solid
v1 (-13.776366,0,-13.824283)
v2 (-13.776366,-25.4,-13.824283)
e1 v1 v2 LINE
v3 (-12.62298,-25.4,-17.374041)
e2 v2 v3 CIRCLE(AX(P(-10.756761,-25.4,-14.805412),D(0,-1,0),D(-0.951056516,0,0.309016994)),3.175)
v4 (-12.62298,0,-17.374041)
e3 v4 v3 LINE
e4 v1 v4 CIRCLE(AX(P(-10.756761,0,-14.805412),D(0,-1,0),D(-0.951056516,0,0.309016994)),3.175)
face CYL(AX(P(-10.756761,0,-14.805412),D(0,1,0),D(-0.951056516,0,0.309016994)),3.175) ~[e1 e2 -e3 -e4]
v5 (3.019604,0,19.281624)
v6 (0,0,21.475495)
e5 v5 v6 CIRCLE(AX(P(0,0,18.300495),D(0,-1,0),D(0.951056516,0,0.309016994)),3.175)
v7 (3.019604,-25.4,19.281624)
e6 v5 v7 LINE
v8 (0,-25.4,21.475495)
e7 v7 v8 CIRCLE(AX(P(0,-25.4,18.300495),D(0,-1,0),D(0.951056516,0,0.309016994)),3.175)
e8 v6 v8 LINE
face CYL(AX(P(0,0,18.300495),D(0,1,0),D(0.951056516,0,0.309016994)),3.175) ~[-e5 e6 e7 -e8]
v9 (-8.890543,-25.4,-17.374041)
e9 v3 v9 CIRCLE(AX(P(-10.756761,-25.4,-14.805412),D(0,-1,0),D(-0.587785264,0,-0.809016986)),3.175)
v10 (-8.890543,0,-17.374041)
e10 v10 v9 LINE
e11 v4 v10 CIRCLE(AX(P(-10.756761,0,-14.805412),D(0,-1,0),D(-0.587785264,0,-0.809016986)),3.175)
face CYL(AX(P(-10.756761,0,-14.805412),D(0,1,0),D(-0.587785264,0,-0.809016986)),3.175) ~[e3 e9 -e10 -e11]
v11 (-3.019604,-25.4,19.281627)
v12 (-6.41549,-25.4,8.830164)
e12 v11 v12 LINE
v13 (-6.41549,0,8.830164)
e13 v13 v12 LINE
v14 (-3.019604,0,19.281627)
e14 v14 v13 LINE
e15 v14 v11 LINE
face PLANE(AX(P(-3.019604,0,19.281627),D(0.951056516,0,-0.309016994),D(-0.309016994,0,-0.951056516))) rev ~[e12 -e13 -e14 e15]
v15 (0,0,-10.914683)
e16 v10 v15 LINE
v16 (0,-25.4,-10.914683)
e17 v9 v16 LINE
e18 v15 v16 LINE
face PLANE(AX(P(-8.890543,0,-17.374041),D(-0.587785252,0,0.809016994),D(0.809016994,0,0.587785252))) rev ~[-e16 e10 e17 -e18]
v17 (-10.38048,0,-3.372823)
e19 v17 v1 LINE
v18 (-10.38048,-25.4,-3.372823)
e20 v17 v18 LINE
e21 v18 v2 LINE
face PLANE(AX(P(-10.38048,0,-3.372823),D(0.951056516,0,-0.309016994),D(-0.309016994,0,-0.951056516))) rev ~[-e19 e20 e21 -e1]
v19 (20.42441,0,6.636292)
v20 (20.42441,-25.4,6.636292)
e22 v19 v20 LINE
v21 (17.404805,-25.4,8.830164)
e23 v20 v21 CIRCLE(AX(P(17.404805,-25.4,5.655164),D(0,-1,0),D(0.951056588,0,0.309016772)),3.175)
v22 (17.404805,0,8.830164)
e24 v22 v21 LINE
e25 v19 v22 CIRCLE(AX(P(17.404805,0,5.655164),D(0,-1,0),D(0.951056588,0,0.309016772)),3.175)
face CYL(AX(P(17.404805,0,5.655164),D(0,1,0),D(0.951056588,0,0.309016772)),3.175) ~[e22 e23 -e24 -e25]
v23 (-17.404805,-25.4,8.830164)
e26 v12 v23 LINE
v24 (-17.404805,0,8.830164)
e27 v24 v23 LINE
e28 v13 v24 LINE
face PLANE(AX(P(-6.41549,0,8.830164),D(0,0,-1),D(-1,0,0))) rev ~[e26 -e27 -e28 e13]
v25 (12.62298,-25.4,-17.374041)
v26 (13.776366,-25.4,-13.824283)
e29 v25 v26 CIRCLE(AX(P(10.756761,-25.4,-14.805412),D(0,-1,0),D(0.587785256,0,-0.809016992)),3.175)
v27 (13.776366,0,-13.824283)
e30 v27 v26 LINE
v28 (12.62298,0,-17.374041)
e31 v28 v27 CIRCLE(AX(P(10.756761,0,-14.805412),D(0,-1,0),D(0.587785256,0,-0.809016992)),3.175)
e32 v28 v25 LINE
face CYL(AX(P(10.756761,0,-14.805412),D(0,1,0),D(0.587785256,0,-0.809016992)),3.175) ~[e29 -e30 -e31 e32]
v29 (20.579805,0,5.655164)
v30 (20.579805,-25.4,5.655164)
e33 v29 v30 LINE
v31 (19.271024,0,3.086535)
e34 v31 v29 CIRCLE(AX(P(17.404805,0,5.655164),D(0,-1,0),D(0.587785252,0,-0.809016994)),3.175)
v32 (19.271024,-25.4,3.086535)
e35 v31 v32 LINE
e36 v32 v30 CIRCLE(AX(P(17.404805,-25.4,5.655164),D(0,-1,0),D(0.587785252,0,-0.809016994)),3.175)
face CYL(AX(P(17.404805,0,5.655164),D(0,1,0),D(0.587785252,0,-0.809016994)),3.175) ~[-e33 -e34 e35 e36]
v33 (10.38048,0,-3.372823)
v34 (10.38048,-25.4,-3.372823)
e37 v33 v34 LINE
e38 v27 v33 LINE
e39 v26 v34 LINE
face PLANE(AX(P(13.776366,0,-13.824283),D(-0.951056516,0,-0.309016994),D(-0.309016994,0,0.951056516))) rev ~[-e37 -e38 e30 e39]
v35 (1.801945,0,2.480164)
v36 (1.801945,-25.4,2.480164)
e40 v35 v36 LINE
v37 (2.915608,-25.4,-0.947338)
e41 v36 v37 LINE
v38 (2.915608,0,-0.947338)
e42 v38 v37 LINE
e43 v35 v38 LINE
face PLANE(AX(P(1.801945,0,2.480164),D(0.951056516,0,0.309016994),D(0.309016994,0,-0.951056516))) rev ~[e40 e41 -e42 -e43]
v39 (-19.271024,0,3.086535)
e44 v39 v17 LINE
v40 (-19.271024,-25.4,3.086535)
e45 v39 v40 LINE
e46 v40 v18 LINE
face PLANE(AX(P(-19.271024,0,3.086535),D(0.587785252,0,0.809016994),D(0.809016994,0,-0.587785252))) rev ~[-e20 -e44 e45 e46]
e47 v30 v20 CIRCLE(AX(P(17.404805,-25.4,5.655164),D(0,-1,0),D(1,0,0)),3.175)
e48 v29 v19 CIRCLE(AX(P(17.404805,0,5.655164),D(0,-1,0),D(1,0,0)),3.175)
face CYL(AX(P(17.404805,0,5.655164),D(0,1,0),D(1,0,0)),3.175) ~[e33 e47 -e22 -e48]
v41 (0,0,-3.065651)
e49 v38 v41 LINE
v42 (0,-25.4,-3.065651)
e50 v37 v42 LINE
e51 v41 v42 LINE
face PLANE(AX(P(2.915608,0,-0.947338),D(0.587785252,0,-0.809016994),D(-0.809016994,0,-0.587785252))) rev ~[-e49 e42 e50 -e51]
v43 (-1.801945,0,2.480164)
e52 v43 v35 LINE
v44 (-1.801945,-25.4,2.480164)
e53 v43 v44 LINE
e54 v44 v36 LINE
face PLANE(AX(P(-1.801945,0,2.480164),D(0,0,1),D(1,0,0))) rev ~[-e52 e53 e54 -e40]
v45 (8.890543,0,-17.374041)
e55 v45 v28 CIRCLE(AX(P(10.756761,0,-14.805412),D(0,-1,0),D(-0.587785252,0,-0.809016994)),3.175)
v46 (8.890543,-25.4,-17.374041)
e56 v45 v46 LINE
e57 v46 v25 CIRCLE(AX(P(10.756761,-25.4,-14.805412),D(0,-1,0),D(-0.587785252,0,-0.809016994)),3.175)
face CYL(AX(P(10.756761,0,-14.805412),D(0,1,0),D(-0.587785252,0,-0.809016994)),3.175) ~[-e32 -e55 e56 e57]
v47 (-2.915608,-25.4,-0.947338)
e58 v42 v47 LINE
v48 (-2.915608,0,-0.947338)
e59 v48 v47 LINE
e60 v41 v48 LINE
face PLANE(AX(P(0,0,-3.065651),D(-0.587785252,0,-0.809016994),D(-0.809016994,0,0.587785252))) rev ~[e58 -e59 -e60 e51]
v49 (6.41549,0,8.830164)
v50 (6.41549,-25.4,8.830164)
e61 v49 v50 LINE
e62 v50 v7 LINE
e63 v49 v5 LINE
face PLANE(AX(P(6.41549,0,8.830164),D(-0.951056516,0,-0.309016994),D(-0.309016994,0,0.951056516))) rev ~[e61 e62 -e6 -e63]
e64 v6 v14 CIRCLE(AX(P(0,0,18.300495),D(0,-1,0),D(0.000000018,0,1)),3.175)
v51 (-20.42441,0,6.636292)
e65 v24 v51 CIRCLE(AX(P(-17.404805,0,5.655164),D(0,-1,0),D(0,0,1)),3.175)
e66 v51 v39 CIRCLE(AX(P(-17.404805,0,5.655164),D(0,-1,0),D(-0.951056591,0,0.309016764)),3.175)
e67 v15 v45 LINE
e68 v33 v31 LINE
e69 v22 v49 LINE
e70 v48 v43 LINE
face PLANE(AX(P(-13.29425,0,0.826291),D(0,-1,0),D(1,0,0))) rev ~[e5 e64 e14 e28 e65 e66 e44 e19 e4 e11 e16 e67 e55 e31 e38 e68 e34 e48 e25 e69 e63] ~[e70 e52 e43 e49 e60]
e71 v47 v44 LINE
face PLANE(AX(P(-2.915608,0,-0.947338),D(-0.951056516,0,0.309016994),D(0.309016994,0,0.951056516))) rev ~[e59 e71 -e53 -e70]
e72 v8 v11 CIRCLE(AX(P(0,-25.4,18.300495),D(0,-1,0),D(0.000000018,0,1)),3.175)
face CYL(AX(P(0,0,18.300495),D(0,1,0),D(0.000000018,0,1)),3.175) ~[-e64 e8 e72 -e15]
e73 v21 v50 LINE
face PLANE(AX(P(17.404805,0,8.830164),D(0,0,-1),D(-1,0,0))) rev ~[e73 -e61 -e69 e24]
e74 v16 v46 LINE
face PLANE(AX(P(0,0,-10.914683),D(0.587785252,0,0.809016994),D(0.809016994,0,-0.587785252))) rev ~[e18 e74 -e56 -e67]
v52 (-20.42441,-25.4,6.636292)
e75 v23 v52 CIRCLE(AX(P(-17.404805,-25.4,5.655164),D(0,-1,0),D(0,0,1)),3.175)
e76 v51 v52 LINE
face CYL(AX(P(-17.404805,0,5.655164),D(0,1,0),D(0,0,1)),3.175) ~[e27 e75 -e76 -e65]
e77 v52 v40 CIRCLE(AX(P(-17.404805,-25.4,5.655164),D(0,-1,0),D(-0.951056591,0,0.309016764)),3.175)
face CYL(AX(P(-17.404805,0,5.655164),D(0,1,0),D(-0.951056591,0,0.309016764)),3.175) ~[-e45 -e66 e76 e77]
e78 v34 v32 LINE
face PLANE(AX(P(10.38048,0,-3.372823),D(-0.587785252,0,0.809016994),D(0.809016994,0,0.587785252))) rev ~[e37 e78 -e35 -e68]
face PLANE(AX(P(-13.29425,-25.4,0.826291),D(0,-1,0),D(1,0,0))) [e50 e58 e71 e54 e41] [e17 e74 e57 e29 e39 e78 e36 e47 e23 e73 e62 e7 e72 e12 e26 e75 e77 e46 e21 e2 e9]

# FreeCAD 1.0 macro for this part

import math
import FreeCAD as App
import Part
import Sketcher

V = App.Vector
Q = App.Units.Quantity

doc = App.newDocument("Part")
body = doc.addObject("PartDesign::Body", "Body")

# Sketch on XZ plane
sketch1 = doc.addObject("Sketcher::SketchObject", "Sketch")
body.addObject(sketch1)
sketch1.AttachmentSupport = (doc.XZ_Plane, [""])
sketch1.MapMode = "FlatFace"
sketch1.addGeometry(Part.ArcOfCircle(Part.Circle(V(0, 18.300495, 0), V(0, 0, 1), 3.175), math.radians(-18), math.radians(0)), False)
sketch1.addGeometry(Part.ArcOfCircle(Part.Circle(V(0, 18.300495, 0), V(0, 0, 1), 3.175), math.radians(0), math.radians(18)), False)
sketch1.addGeometry(Part.ArcOfCircle(Part.Circle(V(0, 18.300495, 0), V(0, 0, 1), 3.175), math.radians(18), math.radians(89.999999)), False)
sketch1.addGeometry(Part.ArcOfCircle(Part.Circle(V(0, 18.300495, 0), V(0, 0, 1), 3.175), math.radians(89.999999), math.radians(161.999959)), False)
sketch1.addGeometry(Part.LineSegment(V(-3.019604, 19.281627, 0), V(-6.41549, 8.830164, 0)), False)
sketch1.addGeometry(Part.LineSegment(V(-6.41549, 8.830164, 0), V(-8.31724, 2.977177, 0)), False)
sketch1.addGeometry(Part.LineSegment(V(-8.31724, 2.977177, 0), V(-8.47873, 2.480164, 0)), False)
sketch1.addGeometry(Part.LineSegment(V(-8.47873, 2.480164, 0), V(-10.38048, -3.372823, 0)), False)
sketch1.addGeometry(Part.LineSegment(V(-10.38048, -3.372823, 0), V(-13.776366, -13.824283, 0)), False)
sketch1.addGeometry(Part.ArcOfCircle(Part.Circle(V(-10.756761, -14.805412, 0), V(0, 0, 1), 3.175), math.radians(162), math.radians(233.999999)), False)
sketch1.addGeometry(Part.ArcOfCircle(Part.Circle(V(-10.756761, -14.805412, 0), V(0, 0, 1), 3.175), math.radians(-126.000001), math.radians(-54)), False)
sketch1.addGeometry(Part.ArcOfCircle(Part.Circle(V(-10.756761, -14.805412, 0), V(0, 0, 1), 3.175), math.radians(-54), math.radians(-18)), False)
sketch1.addGeometry(Part.LineSegment(V(-7.737157, -15.786541, 0), V(-4.978848, -7.297338, 0)), False)
sketch1.addGeometry(Part.LineSegment(V(-4.978848, -7.297338, 0), V(-4.717552, -6.493154, 0)), False)
sketch1.addGeometry(Part.LineSegment(V(-4.717552, -6.493154, 0), V(-2.915608, -0.947338, 0)), False)
sketch1.addGeometry(Part.LineSegment(V(-2.915608, -0.947338, 0), V(-1.801945, 2.480164, 0)), False)
sketch1.addGeometry(Part.LineSegment(V(-1.801945, 2.480164, 0), V(0, 8.02598, 0)), False)
sketch1.addGeometry(Part.LineSegment(V(0, 8.02598, 0), V(0.261295, 8.830164, 0)), False)
sketch1.addGeometry(Part.LineSegment(V(0.261295, 8.830164, 0), V(3.019604, 17.319366, 0)), False)
sketch1.addConstraint(Sketcher.Constraint("Tangent", 0, 2, 1, 1))
sketch1.addConstraint(Sketcher.Constraint("Tangent", 1, 2, 2, 1))
sketch1.addConstraint(Sketcher.Constraint("Tangent", 2, 2, 3, 1))
sketch1.addConstraint(Sketcher.Constraint("Tangent", 3, 2, 4, 1))
sketch1.addConstraint(Sketcher.Constraint("Coincident", 4, 2, 5, 1))
sketch1.addConstraint(Sketcher.Constraint("Coincident", 5, 2, 6, 1))
sketch1.addConstraint(Sketcher.Constraint("Coincident", 6, 2, 7, 1))
sketch1.addConstraint(Sketcher.Constraint("Coincident", 7, 2, 8, 1))
sketch1.addConstraint(Sketcher.Constraint("Tangent", 8, 2, 9, 1))
sketch1.addConstraint(Sketcher.Constraint("Tangent", 9, 2, 10, 1))
sketch1.addConstraint(Sketcher.Constraint("Tangent", 10, 2, 11, 1))
sketch1.addConstraint(Sketcher.Constraint("Tangent", 11, 2, 12, 1))
sketch1.addConstraint(Sketcher.Constraint("Coincident", 12, 2, 13, 1))
sketch1.addConstraint(Sketcher.Constraint("Coincident", 13, 2, 14, 1))
sketch1.addConstraint(Sketcher.Constraint("Coincident", 14, 2, 15, 1))
sketch1.addConstraint(Sketcher.Constraint("Coincident", 15, 2, 16, 1))
sketch1.addConstraint(Sketcher.Constraint("Coincident", 16, 2, 17, 1))
sketch1.addConstraint(Sketcher.Constraint("Coincident", 17, 2, 18, 1))
sketch1.addConstraint(Sketcher.Constraint("Tangent", 18, 2, 0, 1))
sketch1.addConstraint(Sketcher.Constraint("Coincident", 2, 3, 0, 3))
sketch1.addConstraint(Sketcher.Constraint("Coincident", 11, 3, 9, 3))
sketch1.addConstraint(Sketcher.Constraint("Equal", 2, 3))
sketch1.addConstraint(Sketcher.Constraint("Equal", 3, 9))
sketch1.addConstraint(Sketcher.Constraint("Symmetric", 1, 2, 3, 2, -2))
sketch1.addConstraint(Sketcher.Constraint("PointOnObject", 2, 2, -2))
sketch1.addConstraint(Sketcher.Constraint("PointOnObject", 16, 2, -2))
sketch1.addConstraint(Sketcher.Constraint("Parallel", 4, 5))
sketch1.addConstraint(Sketcher.Constraint("Parallel", 5, 6))
sketch1.addConstraint(Sketcher.Constraint("Parallel", 6, 7))
sketch1.addConstraint(Sketcher.Constraint("Parallel", 7, 8))
sketch1.addConstraint(Sketcher.Constraint("Parallel", 8, 12))
sketch1.addConstraint(Sketcher.Constraint("Parallel", 12, 13))
sketch1.addConstraint(Sketcher.Constraint("Parallel", 13, 14))
sketch1.addConstraint(Sketcher.Constraint("Parallel", 14, 15))
sketch1.addConstraint(Sketcher.Constraint("Parallel", 15, 16))
sketch1.addConstraint(Sketcher.Constraint("Parallel", 16, 17))
sketch1.addConstraint(Sketcher.Constraint("Horizontal", 3, 3, 0, 2))
sketch1.addConstraint(Sketcher.Constraint("Horizontal", 9, 2, 10, 2))
sketch1.addConstraint(Sketcher.Constraint("Horizontal", 6, 2, 15, 2))
sketch1.addConstraint(Sketcher.Constraint("Horizontal", 4, 2, 17, 2))
sketch1.addConstraint(Sketcher.Constraint("Equal", 5, 7))
sketch1.addConstraint(Sketcher.Constraint("Equal", 14, 16))
sketch1.addConstraint(Sketcher.Constraint("Equal", 13, 17))
sketch1.addConstraint(Sketcher.Constraint("Equal", 12, 18))
sketch1.addConstraint(Sketcher.Constraint("Angle", 4, Q("-108 deg")))
sketch1.addConstraint(Sketcher.Constraint("Radius", 0, Q("0.125 in")))
sketch1.addConstraint(Sketcher.Constraint("DistanceY", 6, 2, 4, 2, Q("0.25 in")))
sketch1.addConstraint(Sketcher.Constraint("DistanceY", 10, 2, 11, 2, Q("0.0625 in")))
sketch1.addConstraint(Sketcher.Constraint("DistanceX", 9, 2, 7, 2, 2.242499))
sketch1.addConstraint(Sketcher.Constraint("Distance", 6, 0.522591))
sketch1.addConstraint(Sketcher.Constraint("Distance", 13, 0.84557))
sketch1.addConstraint(Sketcher.Constraint("DistanceY", 9, 3, -1, 1, 14.805412))
pad1 = doc.addObject("PartDesign::Pad", "Pad")
body.addObject(pad1)
pad1.Profile = sketch1
pad1.Length = Q("1 in")

# Sketch on XZ plane
sketch2 = doc.addObject("Sketcher::SketchObject", "Sketch001")
body.addObject(sketch2)
sketch2.AttachmentSupport = (doc.XZ_Plane, [""])
sketch2.MapMode = "FlatFace"
sketch2.addGeometry(Part.ArcOfCircle(Part.Circle(V(-17.404805, 5.655164, 0), V(0, 0, 1), 3.175), math.radians(90), math.radians(162.000014)), False)
sketch2.addGeometry(Part.ArcOfCircle(Part.Circle(V(-17.404805, 5.655164, 0), V(0, 0, 1), 3.175), math.radians(162.000014), math.radians(234)), False)
sketch2.addGeometry(Part.ArcOfCircle(Part.Circle(V(-17.404805, 5.655164, 0), V(0, 0, 1), 3.175), math.radians(-126), math.radians(-90)), False)
sketch2.addGeometry(Part.LineSegment(V(-17.404805, 2.480164, 0), V(-8.47873, 2.480164, 0)), False)
sketch2.addGeometry(Part.LineSegment(V(-8.47873, 2.480164, 0), V(-8.31724, 2.977177, 0)), False)
sketch2.addGeometry(Part.LineSegment(V(-8.31724, 2.977177, 0), V(-6.41549, 8.830164, 0)), False)
sketch2.addGeometry(Part.LineSegment(V(-6.41549, 8.830164, 0), V(-17.404805, 8.830164, 0)), False)
sketch2.addGeometry(Part.LineSegment(V(0, 8.02598, 0), V(-1.801945, 2.480164, 0)), False)
sketch2.addGeometry(Part.LineSegment(V(-1.801945, 2.480164, 0), V(17.404805, 2.480164, 0)), False)
sketch2.addGeometry(Part.ArcOfCircle(Part.Circle(V(17.404805, 5.655164, 0), V(0, 0, 1), 3.175), math.radians(-90), math.radians(-54)), False)
sketch2.addGeometry(Part.ArcOfCircle(Part.Circle(V(17.404805, 5.655164, 0), V(0, 0, 1), 3.175), math.radians(-54), math.radians(0)), False)
sketch2.addGeometry(Part.ArcOfCircle(Part.Circle(V(17.404805, 5.655164, 0), V(0, 0, 1), 3.175), math.radians(0), math.radians(17.999987)), False)
sketch2.addGeometry(Part.ArcOfCircle(Part.Circle(V(17.404805, 5.655164, 0), V(0, 0, 1), 3.175), math.radians(17.999987), math.radians(90)), False)
sketch2.addGeometry(Part.LineSegment(V(17.404805, 8.830164, 0), V(0.261295, 8.830164, 0)), False)
sketch2.addGeometry(Part.LineSegment(V(0.261295, 8.830164, 0), V(0, 8.02598, 0)), False)
sketch2.addConstraint(Sketcher.Constraint("Tangent", 0, 2, 1, 1))
sketch2.addConstraint(Sketcher.Constraint("Tangent", 1, 2, 2, 1))
sketch2.addConstraint(Sketcher.Constraint("Tangent", 2, 2, 3, 1))
sketch2.addConstraint(Sketcher.Constraint("Coincident", 3, 2, 4, 1))
sketch2.addConstraint(Sketcher.Constraint("Coincident", 4, 2, 5, 1))
sketch2.addConstraint(Sketcher.Constraint("Coincident", 5, 2, 6, 1))
sketch2.addConstraint(Sketcher.Constraint("Tangent", 6, 2, 0, 1))
sketch2.addConstraint(Sketcher.Constraint("Coincident", 7, 2, 8, 1))
sketch2.addConstraint(Sketcher.Constraint("Tangent", 8, 2, 9, 1))
sketch2.addConstraint(Sketcher.Constraint("Tangent", 9, 2, 10, 1))
sketch2.addConstraint(Sketcher.Constraint("Tangent", 10, 2, 11, 1))
sketch2.addConstraint(Sketcher.Constraint("Tangent", 11, 2, 12, 1))
sketch2.addConstraint(Sketcher.Constraint("Tangent", 12, 2, 13, 1))
sketch2.addConstraint(Sketcher.Constraint("Coincident", 13, 2, 14, 1))
sketch2.addConstraint(Sketcher.Constraint("Coincident", 14, 2, 7, 1))
sketch2.addConstraint(Sketcher.Constraint("Horizontal", 3))
sketch2.addConstraint(Sketcher.Constraint("Horizontal", 6))
sketch2.addConstraint(Sketcher.Constraint("Horizontal", 8))
sketch2.addConstraint(Sketcher.Constraint("Horizontal", 13))
sketch2.addConstraint(Sketcher.Constraint("Coincident", 2, 3, 0, 3))
sketch2.addConstraint(Sketcher.Constraint("Coincident", 11, 3, 9, 3))
sketch2.addConstraint(Sketcher.Constraint("Equal", 2, 9))
sketch2.addConstraint(Sketcher.Constraint("Equal", 11, 12))
sketch2.addConstraint(Sketcher.Constraint("Symmetric", 0, 3, 9, 3, -2))
sketch2.addConstraint(Sketcher.Constraint("PointOnObject", 14, 2, -2))
sketch2.addConstraint(Sketcher.Constraint("Parallel", 4, 5))
sketch2.addConstraint(Sketcher.Constraint("Parallel", 5, 7))
sketch2.addConstraint(Sketcher.Constraint("Parallel", 7, 14))
sketch2.addConstraint(Sketcher.Constraint("Horizontal", 1, 2, 9, 2))
sketch2.addConstraint(Sketcher.Constraint("Horizontal", 12, 3, 10, 2))
sketch2.addConstraint(Sketcher.Constraint("Horizontal", 0, 2, 11, 2))
sketch2.addConstraint(Sketcher.Constraint("Angle", 4, Q("72 deg")))
sketch2.addConstraint(Sketcher.Constraint("Radius", 0, Q("0.125 in")))
sketch2.addConstraint(Sketcher.Constraint("DistanceX", 8, 1, 8, 2, 19.20675))
sketch2.addConstraint(Sketcher.Constraint("Distance", 4, 0.522591))
sketch2.addConstraint(Sketcher.Constraint("Distance", 14, 0.84557))
sketch2.addConstraint(Sketcher.Constraint("DistanceX", 3, 1, 3, 2, 8.926076))
sketch2.addConstraint(Sketcher.Constraint("DistanceX", 0, 2, -1, 1, 20.42441))
sketch2.addConstraint(Sketcher.Constraint("DistanceY", -1, 1, 14, 2, 8.02598))
sketch2.addConstraint(Sketcher.Constraint("DistanceX", 1, 2, 0, 3, 1.866218))
pad2 = doc.addObject("PartDesign::Pad", "Pad001")
body.addObject(pad2)
pad2.Profile = sketch2
pad2.Length = Q("1 in")

# Sketch on XZ plane
sketch3 = doc.addObject("Sketcher::SketchObject", "Sketch002")
body.addObject(sketch3)
sketch3.AttachmentSupport = (doc.XZ_Plane, [""])
sketch3.MapMode = "FlatFace"
sketch3.addGeometry(Part.ArcOfCircle(Part.Circle(V(0, 18.300495, 0), V(0, 0, 1), 3.175), math.radians(0), math.radians(18)), False)
sketch3.addGeometry(Part.ArcOfCircle(Part.Circle(V(0, 18.300495, 0), V(0, 0, 1), 3.175), math.radians(-18), math.radians(0)), False)
sketch3.addGeometry(Part.LineSegment(V(3.019604, 17.319366, 0), V(0.261295, 8.830164, 0)), False)
sketch3.addGeometry(Part.LineSegment(V(0.261295, 8.830164, 0), V(6.41549, 8.830164, 0)), False)
sketch3.addGeometry(Part.LineSegment(V(6.41549, 8.830164, 0), V(3.019604, 19.281624, 0)), False)
sketch3.addGeometry(Part.LineSegment(V(1.801945, 2.480164, 0), V(2.915608, -0.947338, 0)), False)
sketch3.addGeometry(Part.LineSegment(V(2.915608, -0.947338, 0), V(4.717552, -6.493154, 0)), False)
sketch3.addGeometry(Part.LineSegment(V(4.717552, -6.493154, 0), V(4.978848, -7.297338, 0)), False)
sketch3.addGeometry(Part.LineSegment(V(4.978848, -7.297338, 0), V(7.737157, -15.786541, 0)), False)
sketch3.addGeometry(Part.ArcOfCircle(Part.Circle(V(10.756761, -14.805412, 0), V(0, 0, 1), 3.175), math.radians(-162), math.radians(-126)), False)
sketch3.addGeometry(Part.ArcOfCircle(Part.Circle(V(10.756761, -14.805412, 0), V(0, 0, 1), 3.175), math.radians(-126), math.radians(-54)), False)
sketch3.addGeometry(Part.ArcOfCircle(Part.Circle(V(10.756761, -14.805412, 0), V(0, 0, 1), 3.175), math.radians(-54), math.radians(18)), False)
sketch3.addGeometry(Part.LineSegment(V(13.776366, -13.824283, 0), V(10.38048, -3.372823, 0)), False)
sketch3.addGeometry(Part.LineSegment(V(10.38048, -3.372823, 0), V(8.47873, 2.480164, 0)), False)
sketch3.addGeometry(Part.LineSegment(V(8.47873, 2.480164, 0), V(1.801945, 2.480164, 0)), False)
sketch3.addConstraint(Sketcher.Constraint("Tangent", 0, 1, 1, 2))
sketch3.addConstraint(Sketcher.Constraint("Tangent", 1, 1, 2, 1))
sketch3.addConstraint(Sketcher.Constraint("Coincident", 2, 2, 3, 1))
sketch3.addConstraint(Sketcher.Constraint("Coincident", 3, 2, 4, 1))
sketch3.addConstraint(Sketcher.Constraint("Tangent", 4, 2, 0, 2))
sketch3.addConstraint(Sketcher.Constraint("Coincident", 5, 2, 6, 1))
sketch3.addConstraint(Sketcher.Constraint("Coincident", 6, 2, 7, 1))
sketch3.addConstraint(Sketcher.Constraint("Coincident", 7, 2, 8, 1))
sketch3.addConstraint(Sketcher.Constraint("Tangent", 8, 2, 9, 1))
sketch3.addConstraint(Sketcher.Constraint("Tangent", 9, 2, 10, 1))
sketch3.addConstraint(Sketcher.Constraint("Tangent", 10, 2, 11, 1))
sketch3.addConstraint(Sketcher.Constraint("Tangent", 11, 2, 12, 1))
sketch3.addConstraint(Sketcher.Constraint("Coincident", 12, 2, 13, 1))
sketch3.addConstraint(Sketcher.Constraint("Coincident", 13, 2, 14, 1))
sketch3.addConstraint(Sketcher.Constraint("Coincident", 14, 2, 5, 1))
sketch3.addConstraint(Sketcher.Constraint("Horizontal", 3))
sketch3.addConstraint(Sketcher.Constraint("Horizontal", 14))
sketch3.addConstraint(Sketcher.Constraint("Coincident", 11, 3, 9, 3))
sketch3.addConstraint(Sketcher.Constraint("Equal", 0, 1))
sketch3.addConstraint(Sketcher.Constraint("Equal", 1, 9))
sketch3.addConstraint(Sketcher.Constraint("PointOnObject", 0, 3, -2))
sketch3.addConstraint(Sketcher.Constraint("Parallel", 4, 5))
sketch3.addConstraint(Sketcher.Constraint("Parallel", 5, 6))
sketch3.addConstraint(Sketcher.Constraint("Parallel", 6, 7))
sketch3.addConstraint(Sketcher.Constraint("Parallel", 7, 8))
sketch3.addConstraint(Sketcher.Constraint("Parallel", 8, 12))
sketch3.addConstraint(Sketcher.Constraint("Parallel", 12, 13))
sketch3.addConstraint(Sketcher.Constraint("Horizontal", 1, 3, 0, 1))
sketch3.addConstraint(Sketcher.Constraint("Horizontal", 9, 2, 10, 2))
sketch3.addConstraint(Sketcher.Constraint("Vertical", 1, 1, 4, 2))
sketch3.addConstraint(Sketcher.Constraint("Equal", 2, 8))
sketch3.addConstraint(Sketcher.Constraint("Equal", 4, 12))
sketch3.addConstraint(Sketcher.Constraint("Angle", 2, Q("-108 deg")))
sketch3.addConstraint(Sketcher.Constraint("Radius", 0, Q("0.125 in")))
sketch3.addConstraint(Sketcher.Constraint("DistanceY", 7, 2, 5, 2, Q("0.25 in")))
sketch3.addConstraint(Sketcher.Constraint("DistanceY", 13, 2, 3, 2, Q("0.25 in")))
sketch3.addConstraint(Sketcher.Constraint("DistanceY", 9, 2, 8, 2, Q("0.0625 in")))
sketch3.addConstraint(Sketcher.Constraint("Distance", 5, 3.603889))
sketch3.addConstraint(Sketcher.Constraint("Distance", 7, 0.84557))
sketch3.addConstraint(Sketcher.Constraint("DistanceX", 3, 1, 3, 2, 6.154194))
sketch3.addConstraint(Sketcher.Constraint("DistanceX", -1, 1, 9, 3, 10.756761))
sketch3.addConstraint(Sketcher.Constraint("DistanceY", 9, 3, -1, 1, 14.805412))
pad3 = doc.addObject("PartDesign::Pad", "Pad002")
body.addObject(pad3)
pad3.Profile = sketch3
pad3.Length = Q("1 in")

# Sketch on XZ plane
sketch4 = doc.addObject("Sketcher::SketchObject", "Sketch003")
body.addObject(sketch4)
sketch4.AttachmentSupport = (doc.XZ_Plane, [""])
sketch4.MapMode = "FlatFace"
sketch4.addGeometry(Part.ArcOfCircle(Part.Circle(V(-10.756761, -14.805412, 0), V(0, 0, 1), 3.175), math.radians(-54), math.radians(-18)), False)
sketch4.addGeometry(Part.LineSegment(V(-8.890543, -17.374041, 0), V(0, -10.914683, 0)), False)
sketch4.addGeometry(Part.LineSegment(V(0, -10.914683, 0), V(4.978848, -7.297338, 0)), False)
sketch4.addGeometry(Part.LineSegment(V(4.978848, -7.297338, 0), V(4.717552, -6.493154, 0)), False)
sketch4.addGeometry(Part.LineSegment(V(4.717552, -6.493154, 0), V(2.915608, -0.947338, 0)), False)
sketch4.addGeometry(Part.LineSegment(V(2.915608, -0.947338, 0), V(0, -3.065651, 0)), False)
sketch4.addGeometry(Part.LineSegment(V(0, -3.065651, 0), V(-4.717552, -6.493154, 0)), False)
sketch4.addGeometry(Part.LineSegment(V(-4.717552, -6.493154, 0), V(-4.978848, -7.297338, 0)), False)
sketch4.addGeometry(Part.LineSegment(V(-4.978848, -7.297338, 0), V(-7.737157, -15.786541, 0)), False)
sketch4.addGeometry(Part.LineSegment(V(17.404805, 2.480164, 0), V(8.47873, 2.480164, 0)), False)
sketch4.addGeometry(Part.LineSegment(V(8.47873, 2.480164, 0), V(10.38048, -3.372823, 0)), False)
sketch4.addGeometry(Part.LineSegment(V(10.38048, -3.372823, 0), V(19.271024, 3.086535, 0)), False)
sketch4.addGeometry(Part.ArcOfCircle(Part.Circle(V(17.404805, 5.655164, 0), V(0, 0, 1), 3.175), math.radians(-90), math.radians(-54)), False)
sketch4.addConstraint(Sketcher.Constraint("Tangent", 0, 1, 1, 1))
sketch4.addConstraint(Sketcher.Constraint("Coincident", 1, 2, 2, 1))
sketch4.addConstraint(Sketcher.Constraint("Coincident", 2, 2, 3, 1))
sketch4.addConstraint(Sketcher.Constraint("Coincident", 3, 2, 4, 1))
sketch4.addConstraint(Sketcher.Constraint("Coincident", 4, 2, 5, 1))
sketch4.addConstraint(Sketcher.Constraint("Coincident", 5, 2, 6, 1))
sketch4.addConstraint(Sketcher.Constraint("Coincident", 6, 2, 7, 1))
sketch4.addConstraint(Sketcher.Constraint("Coincident", 7, 2, 8, 1))
sketch4.addConstraint(Sketcher.Constraint("Tangent", 8, 2, 0, 2))
sketch4.addConstraint(Sketcher.Constraint("Coincident", 9, 2, 10, 1))
sketch4.addConstraint(Sketcher.Constraint("Coincident", 10, 2, 11, 1))
sketch4.addConstraint(Sketcher.Constraint("Tangent", 11, 2, 12, 2))
sketch4.addConstraint(Sketcher.Constraint("Tangent", 12, 1, 9, 1))
sketch4.addConstraint(Sketcher.Constraint("Horizontal", 9))
sketch4.addConstraint(Sketcher.Constraint("Equal", 0, 12))
sketch4.addConstraint(Sketcher.Constraint("Symmetric", 3, 2, 6, 2, -2))
sketch4.addConstraint(Sketcher.Constraint("Symmetric", 2, 2, 7, 2, -2))
sketch4.addConstraint(Sketcher.Constraint("PointOnObject", 1, 2, -2))
sketch4.addConstraint(Sketcher.Constraint("PointOnObject", 5, 2, -2))
sketch4.addConstraint(Sketcher.Constraint("Parallel", 1, 2))
sketch4.addConstraint(Sketcher.Constraint("Parallel", 3, 4))
sketch4.addConstraint(Sketcher.Constraint("Parallel", 2, 5))
sketch4.addConstraint(Sketcher.Constraint("Parallel", 5, 6))
sketch4.addConstraint(Sketcher.Constraint("Parallel", 7, 8))
sketch4.addConstraint(Sketcher.Constraint("Parallel", 4, 10))
sketch4.addConstraint(Sketcher.Constraint("Parallel", 6, 11))
sketch4.addConstraint(Sketcher.Constraint("Equal", 4, 6))
sketch4.addConstraint(Sketcher.Constraint("Equal", 2, 10))
sketch4.addConstraint(Sketcher.Constraint("Equal", 1, 11))
sketch4.addConstraint(Sketcher.Constraint("Radius", 0, Q("0.125 in")))
sketch4.addConstraint(Sketcher.Constraint("DistanceY", 2, 2, 4, 2, Q("0.25 in")))
sketch4.addConstraint(Sketcher.Constraint("DistanceX", 6, 2, 2, 2, 9.6964))
sketch4.addConstraint(Sketcher.Constraint("DistanceY", 0, 3, -1, 1, 14.805412))
sketch4.addConstraint(Sketcher.Constraint("DistanceX", -1, 1, 9, 2, 8.47873))
sketch4.addConstraint(Sketcher.Constraint("DistanceY", 3, 2, 12, 3, 12.148318))
pad4 = doc.addObject("PartDesign::Pad", "Pad003")
body.addObject(pad4)
pad4.Profile = sketch4
pad4.Length = Q("1 in")

# Sketch on XZ plane
sketch5 = doc.addObject("Sketcher::SketchObject", "Sketch004")
body.addObject(sketch5)
sketch5.AttachmentSupport = (doc.XZ_Plane, [""])
sketch5.MapMode = "FlatFace"
sketch5.addGeometry(Part.ArcOfCircle(Part.Circle(V(-17.404805, 5.655164, 0), V(0, 0, 1), 3.175), math.radians(-126), math.radians(-90)), False)
sketch5.addGeometry(Part.LineSegment(V(-19.271024, 3.086535, 0), V(-10.38048, -3.372823, 0)), False)
sketch5.addGeometry(Part.LineSegment(V(-10.38048, -3.372823, 0), V(-8.47873, 2.480164, 0)), False)
sketch5.addGeometry(Part.LineSegment(V(-8.47873, 2.480164, 0), V(-17.404805, 2.480164, 0)), False)
sketch5.addGeometry(Part.LineSegment(V(0, -3.065651, 0), V(-2.915608, -0.947338, 0)), False)
sketch5.addGeometry(Part.LineSegment(V(-2.915608, -0.947338, 0), V(-4.717552, -6.493154, 0)), False)
sketch5.addGeometry(Part.LineSegment(V(-4.717552, -6.493154, 0), V(0, -3.065651, 0)), False)
sketch5.addGeometry(Part.LineSegment(V(0, -10.914683, 0), V(8.890543, -17.374041, 0)), False)
sketch5.addGeometry(Part.ArcOfCircle(Part.Circle(V(10.756761, -14.805412, 0), V(0, 0, 1), 3.175), math.radians(-162), math.radians(-126)), False)
sketch5.addGeometry(Part.LineSegment(V(7.737157, -15.786541, 0), V(4.978848, -7.297338, 0)), False)
sketch5.addGeometry(Part.LineSegment(V(4.978848, -7.297338, 0), V(0, -10.914683, 0)), False)
sketch5.addConstraint(Sketcher.Constraint("Tangent", 0, 1, 1, 1))
sketch5.addConstraint(Sketcher.Constraint("Coincident", 1, 2, 2, 1))
sketch5.addConstraint(Sketcher.Constraint("Coincident", 2, 2, 3, 1))
sketch5.addConstraint(Sketcher.Constraint("Tangent", 3, 2, 0, 2))
sketch5.addConstraint(Sketcher.Constraint("Coincident", 4, 2, 5, 1))
sketch5.addConstraint(Sketcher.Constraint("Coincident", 5, 2, 6, 1))
sketch5.addConstraint(Sketcher.Constraint("Coincident", 6, 2, 4, 1))
sketch5.addConstraint(Sketcher.Constraint("Tangent", 7, 2, 8, 2))
sketch5.addConstraint(Sketcher.Constraint("Tangent", 8, 1, 9, 1))
sketch5.addConstraint(Sketcher.Constraint("Coincident", 9, 2, 10, 1))
sketch5.addConstraint(Sketcher.Constraint("Coincident", 10, 2, 7, 1))
sketch5.addConstraint(Sketcher.Constraint("Horizontal", 3))
sketch5.addConstraint(Sketcher.Constraint("Equal", 0, 8))
sketch5.addConstraint(Sketcher.Constraint("PointOnObject", 6, 2, -2))
sketch5.addConstraint(Sketcher.Constraint("PointOnObject", 10, 2, -2))
sketch5.addConstraint(Sketcher.Constraint("Parallel", 1, 4))
sketch5.addConstraint(Sketcher.Constraint("Parallel", 2, 5))
sketch5.addConstraint(Sketcher.Constraint("Parallel", 4, 7))
sketch5.addConstraint(Sketcher.Constraint("Parallel", 6, 10))
sketch5.addConstraint(Sketcher.Constraint("Equal", 5, 6))
sketch5.addConstraint(Sketcher.Constraint("Equal", 1, 7))
sketch5.addConstraint(Sketcher.Constraint("Equal", 2, 10))
sketch5.addConstraint(Sketcher.Constraint("Angle", 1, Q("-36 deg")))
sketch5.addConstraint(Sketcher.Constraint("Angle", 2, Q("72 deg")))
sketch5.addConstraint(Sketcher.Constraint("Radius", 0, Q("0.125 in")))
sketch5.addConstraint(Sketcher.Constraint("DistanceY", 9, 2, 4, 2, Q("0.25 in")))
sketch5.addConstraint(Sketcher.Constraint("DistanceX", 4, 2, 8, 1, Q("0.4194002 in")))
sketch5.addConstraint(Sketcher.Constraint("DistanceX", 5, 2, 9, 2, 9.6964))
sketch5.addConstraint(Sketcher.Constraint("DistanceY", 8, 3, -1, 1, 14.805412))
sketch5.addConstraint(Sketcher.Constraint("DistanceX", 1, 2, -1, 1, 10.38048))
sketch5.addConstraint(Sketcher.Constraint("DistanceY", 8, 3, 1, 2, 11.432589))
pad5 = doc.addObject("PartDesign::Pad", "Pad004")
body.addObject(pad5)
pad5.Profile = sketch5
pad5.Length = Q("1 in")

doc.recompute()
